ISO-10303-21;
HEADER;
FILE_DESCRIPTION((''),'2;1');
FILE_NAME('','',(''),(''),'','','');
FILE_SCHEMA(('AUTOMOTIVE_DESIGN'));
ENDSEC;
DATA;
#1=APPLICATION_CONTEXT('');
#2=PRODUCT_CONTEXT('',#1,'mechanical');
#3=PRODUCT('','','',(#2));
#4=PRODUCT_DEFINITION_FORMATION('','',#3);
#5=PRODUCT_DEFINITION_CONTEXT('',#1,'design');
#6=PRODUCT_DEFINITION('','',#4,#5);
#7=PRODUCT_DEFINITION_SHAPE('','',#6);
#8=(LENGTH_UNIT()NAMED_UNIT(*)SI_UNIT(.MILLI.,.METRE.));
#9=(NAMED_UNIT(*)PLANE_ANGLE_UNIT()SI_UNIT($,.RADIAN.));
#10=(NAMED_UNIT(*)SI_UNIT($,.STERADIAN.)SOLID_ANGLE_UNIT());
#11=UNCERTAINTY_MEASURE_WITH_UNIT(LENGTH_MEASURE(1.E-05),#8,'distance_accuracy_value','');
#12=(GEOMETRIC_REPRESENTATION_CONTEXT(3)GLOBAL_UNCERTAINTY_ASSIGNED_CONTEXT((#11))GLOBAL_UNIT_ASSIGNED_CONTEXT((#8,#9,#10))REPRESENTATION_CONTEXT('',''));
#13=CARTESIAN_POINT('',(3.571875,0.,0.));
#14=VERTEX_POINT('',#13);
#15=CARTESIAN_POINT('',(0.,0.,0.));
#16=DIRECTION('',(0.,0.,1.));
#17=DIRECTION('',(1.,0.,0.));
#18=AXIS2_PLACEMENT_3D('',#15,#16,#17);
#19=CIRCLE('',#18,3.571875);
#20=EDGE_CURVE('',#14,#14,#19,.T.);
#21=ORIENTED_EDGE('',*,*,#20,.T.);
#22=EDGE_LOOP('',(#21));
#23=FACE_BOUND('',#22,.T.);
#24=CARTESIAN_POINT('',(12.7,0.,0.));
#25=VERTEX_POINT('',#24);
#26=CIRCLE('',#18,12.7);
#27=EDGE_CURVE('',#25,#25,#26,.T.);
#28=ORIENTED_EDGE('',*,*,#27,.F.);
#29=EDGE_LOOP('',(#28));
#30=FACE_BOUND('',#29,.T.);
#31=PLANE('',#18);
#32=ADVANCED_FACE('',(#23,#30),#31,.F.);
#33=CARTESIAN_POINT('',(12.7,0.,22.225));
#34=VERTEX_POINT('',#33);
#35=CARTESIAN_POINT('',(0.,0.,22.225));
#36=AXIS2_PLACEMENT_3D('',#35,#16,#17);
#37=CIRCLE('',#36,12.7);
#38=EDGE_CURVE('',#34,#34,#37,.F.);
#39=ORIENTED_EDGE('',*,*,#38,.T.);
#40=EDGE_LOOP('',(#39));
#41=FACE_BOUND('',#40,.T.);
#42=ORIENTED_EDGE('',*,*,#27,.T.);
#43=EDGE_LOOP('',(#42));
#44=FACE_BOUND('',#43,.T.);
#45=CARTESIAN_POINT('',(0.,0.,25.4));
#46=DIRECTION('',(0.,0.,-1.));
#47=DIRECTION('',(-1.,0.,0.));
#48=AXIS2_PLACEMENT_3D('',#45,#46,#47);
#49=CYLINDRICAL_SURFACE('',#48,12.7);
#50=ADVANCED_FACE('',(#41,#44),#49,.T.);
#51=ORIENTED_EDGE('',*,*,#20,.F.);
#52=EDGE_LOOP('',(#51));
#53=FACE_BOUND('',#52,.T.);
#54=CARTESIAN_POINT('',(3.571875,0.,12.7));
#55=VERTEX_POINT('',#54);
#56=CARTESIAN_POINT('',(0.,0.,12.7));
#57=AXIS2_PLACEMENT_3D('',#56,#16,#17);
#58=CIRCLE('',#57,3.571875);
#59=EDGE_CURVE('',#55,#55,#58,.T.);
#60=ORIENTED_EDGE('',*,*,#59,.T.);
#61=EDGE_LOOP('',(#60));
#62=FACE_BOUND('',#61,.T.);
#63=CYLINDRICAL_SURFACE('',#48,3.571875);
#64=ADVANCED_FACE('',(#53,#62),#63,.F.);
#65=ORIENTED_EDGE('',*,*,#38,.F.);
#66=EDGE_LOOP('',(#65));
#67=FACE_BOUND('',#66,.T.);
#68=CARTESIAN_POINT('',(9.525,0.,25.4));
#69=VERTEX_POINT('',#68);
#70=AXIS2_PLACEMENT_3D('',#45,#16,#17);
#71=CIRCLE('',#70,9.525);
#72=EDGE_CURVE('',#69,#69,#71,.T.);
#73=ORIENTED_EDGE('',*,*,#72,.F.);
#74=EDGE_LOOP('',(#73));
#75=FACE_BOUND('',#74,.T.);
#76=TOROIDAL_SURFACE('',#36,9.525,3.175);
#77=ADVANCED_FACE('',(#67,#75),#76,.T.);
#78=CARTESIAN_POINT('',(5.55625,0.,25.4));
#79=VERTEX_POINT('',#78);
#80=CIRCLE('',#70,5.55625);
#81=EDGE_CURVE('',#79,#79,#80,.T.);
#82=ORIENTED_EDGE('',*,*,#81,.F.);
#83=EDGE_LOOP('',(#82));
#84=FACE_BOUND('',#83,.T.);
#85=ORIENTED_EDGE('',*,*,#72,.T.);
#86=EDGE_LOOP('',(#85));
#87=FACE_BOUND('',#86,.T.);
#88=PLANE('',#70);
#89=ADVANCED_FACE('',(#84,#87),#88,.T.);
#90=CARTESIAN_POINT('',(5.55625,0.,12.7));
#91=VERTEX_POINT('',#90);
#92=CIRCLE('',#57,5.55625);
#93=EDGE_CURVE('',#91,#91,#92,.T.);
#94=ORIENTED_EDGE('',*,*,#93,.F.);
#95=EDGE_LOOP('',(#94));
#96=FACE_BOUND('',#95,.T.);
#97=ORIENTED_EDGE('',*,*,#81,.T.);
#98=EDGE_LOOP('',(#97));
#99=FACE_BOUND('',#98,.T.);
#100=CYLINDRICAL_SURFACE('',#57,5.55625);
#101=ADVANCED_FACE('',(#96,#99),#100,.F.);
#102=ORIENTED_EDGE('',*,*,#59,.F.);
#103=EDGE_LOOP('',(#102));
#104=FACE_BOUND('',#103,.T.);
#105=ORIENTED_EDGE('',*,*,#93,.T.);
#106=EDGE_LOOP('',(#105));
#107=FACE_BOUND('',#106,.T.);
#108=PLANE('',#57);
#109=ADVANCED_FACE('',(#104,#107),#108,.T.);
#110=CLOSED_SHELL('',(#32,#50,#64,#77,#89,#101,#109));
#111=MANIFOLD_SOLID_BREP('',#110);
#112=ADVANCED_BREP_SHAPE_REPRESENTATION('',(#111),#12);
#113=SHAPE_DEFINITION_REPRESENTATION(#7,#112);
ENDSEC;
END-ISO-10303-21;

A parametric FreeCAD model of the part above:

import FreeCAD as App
import Part
import Sketcher

V = App.Vector
Q = App.Units.Quantity


def edges_at(feature, points):
    """Names of the edges that pass closest to the given points."""
    edges = feature.Shape.Edges
    near = lambda p: min(range(len(edges)), key=lambda i: edges[i].distToShape(Part.Vertex(*p))[0])
    return sorted({f"Edge{near(p) + 1}" for p in points})

doc = App.newDocument("Part")
body = doc.addObject("PartDesign::Body", "Body")

# Sketch on XY plane
sketch1 = body.newObject("Sketcher::SketchObject", "Sketch")
sketch1.AttachmentSupport = (doc.getObject("XY_Plane"), [""])
sketch1.MapMode = "FlatFace"
sketch1.addGeometry([
    Part.Circle(V(0, 0, 0), V(0, 0, 1), 12.7),
    Part.Circle(V(0, 0, 0), V(0, 0, 1), 3.571875),
], False)
sketch1.addConstraint([
    Sketcher.Constraint("Coincident", 0, 3, -1, 1),
    Sketcher.Constraint("Coincident", 1, 3, -1, 1),
    Sketcher.Constraint("Diameter", 0, Q("1 in")),
    Sketcher.Constraint("Diameter", 1, Q("0.28125 in")),
])
pad1 = body.newObject("PartDesign::Pad", "Pad")
pad1.Profile = sketch1
pad1.Length = Q("1 in")

# Sketch on XY plane
sketch2 = body.newObject("Sketcher::SketchObject", "Sketch001")
sketch2.AttachmentSupport = (doc.getObject("XY_Plane"), [""])
sketch2.MapMode = "FlatFace"
sketch2.AttachmentOffset = App.Placement(V(0, 0, 1 * 25.4), App.Rotation())
sketch2.addGeometry(Part.Circle(V(0, 0, 0), V(0, 0, 1), 5.55625), False)
sketch2.addConstraint([
    Sketcher.Constraint("Coincident", 0, 3, -1, 1),
    Sketcher.Constraint("Diameter", 0, Q("0.4375 in")),
])
pocket1 = body.newObject("PartDesign::Pocket", "Pocket")
pocket1.Profile = sketch2
pocket1.Length = Q("0.5 in")
doc.recompute()

fillet = body.newObject("PartDesign::Fillet", "Fillet")
fillet.Base = (pocket1, edges_at(pocket1, [(-12.7, 0, 25.4)]))
fillet.Radius = Q("0.125 in")

doc.recompute()
